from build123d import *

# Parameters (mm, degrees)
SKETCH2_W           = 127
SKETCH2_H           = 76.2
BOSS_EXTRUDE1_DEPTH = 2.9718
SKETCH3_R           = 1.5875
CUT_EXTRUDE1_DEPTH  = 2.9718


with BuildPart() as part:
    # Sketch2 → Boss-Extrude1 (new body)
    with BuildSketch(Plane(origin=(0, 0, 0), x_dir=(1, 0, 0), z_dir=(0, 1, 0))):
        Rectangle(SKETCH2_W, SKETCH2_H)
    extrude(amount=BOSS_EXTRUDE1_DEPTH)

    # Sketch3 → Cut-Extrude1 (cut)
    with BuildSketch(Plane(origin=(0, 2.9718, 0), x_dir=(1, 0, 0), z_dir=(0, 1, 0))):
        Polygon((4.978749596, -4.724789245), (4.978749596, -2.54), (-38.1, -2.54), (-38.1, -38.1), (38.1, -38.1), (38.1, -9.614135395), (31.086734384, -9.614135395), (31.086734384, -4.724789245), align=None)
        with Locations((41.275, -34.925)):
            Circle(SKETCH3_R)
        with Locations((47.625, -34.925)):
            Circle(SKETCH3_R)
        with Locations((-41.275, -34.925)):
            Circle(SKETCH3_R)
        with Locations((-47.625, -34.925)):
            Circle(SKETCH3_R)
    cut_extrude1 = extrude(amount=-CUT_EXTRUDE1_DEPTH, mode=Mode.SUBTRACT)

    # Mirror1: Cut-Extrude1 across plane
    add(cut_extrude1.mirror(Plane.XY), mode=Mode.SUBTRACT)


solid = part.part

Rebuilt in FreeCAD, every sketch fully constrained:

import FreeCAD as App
import Part
import Sketcher
Q = App.Units.Quantity


def add_polygon(sketch, points):
    """Adds a closed chain of lines whose ends are joined by coincident constraints."""
    first, n = sketch.GeometryCount, len(points)
    for a, b in zip(points, points[1:] + points[:1]):
        sketch.addGeometry(Part.LineSegment(App.Vector(*a, 0), App.Vector(*b, 0)), False)
    for i in range(n):
        sketch.addConstraint(Sketcher.Constraint("Coincident", first + i, 2, first + (i + 1) % n, 1))

doc = App.newDocument("Part")
params = doc.addObject("Spreadsheet::Sheet", "Params")
for row, (alias, value) in enumerate([
    ("sketch1_width", "5 in"),
    ("sketch1_height", "3 in"),
    ("pad1_length", "0.117 in"),
    ("sketch2_width", "3 in"),
    ("sketch2_diameter", "0.125 in"),
    ("sketch2_height", "1.4 in"),
    ("pocket1_length", "0.117 in"),
], start=1):
    params.set(f"A{row}", alias)
    params.set(f"B{row}", "=" + value)
    params.setAlias(f"B{row}", alias)

body = doc.addObject("PartDesign::Body", "Body")

sketch1 = doc.addObject("Sketcher::SketchObject", "Sketch")
body.addObject(sketch1)
sketch1.AttachmentSupport = (doc.XZ_Plane, [""])
sketch1.MapMode = "FlatFace"
add_polygon(sketch1, [(-64, -38), (-64, 38), (64, 38), (64, -38)])
sketch1.addConstraint(Sketcher.Constraint("Vertical", 0))
sketch1.addConstraint(Sketcher.Constraint("Horizontal", 1))
sketch1.addConstraint(Sketcher.Constraint("Vertical", 2))
sketch1.addConstraint(Sketcher.Constraint("Horizontal", 3))
sketch1.addConstraint(Sketcher.Constraint("Symmetric", 0, 2, 2, 2, -1, 1))
sketch1.addConstraint(Sketcher.Constraint("DistanceX", 1, 1, 1, 2, Q("5 in")))
sketch1.addConstraint(Sketcher.Constraint("DistanceY", 0, 1, 0, 2, Q("3 in")))
sketch1.setExpression("Constraints[9]", "Params.sketch1_width")
sketch1.setExpression("Constraints[10]", "Params.sketch1_height")
pad1 = doc.addObject("PartDesign::Pad", "Pad")
body.addObject(pad1)
pad1.Profile = sketch1
pad1.setExpression("Length", "Params.pad1_length")
pad1.Reversed = True

sketch2 = doc.addObject("Sketcher::SketchObject", "Sketch001")
body.addObject(sketch2)
sketch2.AttachmentSupport = (doc.XZ_Plane, [""])
sketch2.MapMode = "FlatFace"
sketch2.AttachmentOffset = App.Placement(App.Vector(0, 0, -0.117 * 25.4), App.Rotation())
add_polygon(sketch2, [(5, 4.7), (5, 2.5), (-38.1, 2.5), (-38.1, 38.1), (38.1, 38.1), (38.1, 9.6), (31.1, 9.6), (31.1, 4.7)])
sketch2.addGeometry(Part.Circle(App.Vector(41.3, 34.9, 0), App.Vector(0, 0, 1), 1.6), False)
sketch2.addGeometry(Part.Circle(App.Vector(47.6, 34.9, 0), App.Vector(0, 0, 1), 1.6), False)
sketch2.addGeometry(Part.Circle(App.Vector(-41.3, 34.9, 0), App.Vector(0, 0, 1), 1.6), False)
sketch2.addGeometry(Part.Circle(App.Vector(-47.6, 34.9, 0), App.Vector(0, 0, 1), 1.6), False)
sketch2.addConstraint(Sketcher.Constraint("Vertical", 0))
sketch2.addConstraint(Sketcher.Constraint("Horizontal", 1))
sketch2.addConstraint(Sketcher.Constraint("Vertical", 2))
sketch2.addConstraint(Sketcher.Constraint("Horizontal", 3))
sketch2.addConstraint(Sketcher.Constraint("Vertical", 4))
sketch2.addConstraint(Sketcher.Constraint("Horizontal", 5))
sketch2.addConstraint(Sketcher.Constraint("Vertical", 6))
sketch2.addConstraint(Sketcher.Constraint("Horizontal", 7))
sketch2.addConstraint(Sketcher.Constraint("Equal", 8, 9))
sketch2.addConstraint(Sketcher.Constraint("Equal", 9, 10))
sketch2.addConstraint(Sketcher.Constraint("Equal", 10, 11))
sketch2.addConstraint(Sketcher.Constraint("Symmetric", 8, 3, 10, 3, -2))
sketch2.addConstraint(Sketcher.Constraint("Symmetric", 9, 3, 11, 3, -2))
sketch2.addConstraint(Sketcher.Constraint("Horizontal", 8, 3, 9, 3))
sketch2.addConstraint(Sketcher.Constraint("DistanceX", 3, 1, 3, 2, Q("3 in")))
sketch2.addConstraint(Sketcher.Constraint("Diameter", 8, Q("0.125 in")))
sketch2.addConstraint(Sketcher.Constraint("DistanceY", 2, 1, 2, 2, Q("1.4 in")))
sketch2.addConstraint(Sketcher.Constraint("DistanceY", -1, 1, 0, 2, Q("0.1 in")))
sketch2.addConstraint(Sketcher.Constraint("DistanceX", 1, 2, -1, 1, Q("1.5 in")))
sketch2.addConstraint(Sketcher.Constraint("DistanceX", 10, 3, 9, 3, Q("3.5 in")))
sketch2.addConstraint(Sketcher.Constraint("DistanceX", 8, 3, 9, 3, Q("0.25 in")))
sketch2.addConstraint(Sketcher.Constraint("DistanceY", -1, 1, 8, 3, Q("1.375 in")))
sketch2.addConstraint(Sketcher.Constraint("DistanceX", 1, 2, 1, 1, 43.07875))
sketch2.addConstraint(Sketcher.Constraint("DistanceY", 0, 2, 0, 1, 2.184789))
sketch2.addConstraint(Sketcher.Constraint("DistanceX", 5, 2, 5, 1, 7.013266))
sketch2.addConstraint(Sketcher.Constraint("DistanceY", 4, 2, 4, 1, 28.485865))
sketch2.setExpression("Constraints[22]", "Params.sketch2_width")
sketch2.setExpression("Constraints[23]", "Params.sketch2_diameter")
sketch2.setExpression("Constraints[24]", "Params.sketch2_height")
pocket1 = doc.addObject("PartDesign::Pocket", "Pocket")
body.addObject(pocket1)
pocket1.Profile = sketch2
pocket1.setExpression("Length", "Params.pocket1_length")
pocket1.Reversed = True
doc.recompute()

mirrored = doc.addObject("PartDesign::Mirrored", "Mirrored")
body.addObject(mirrored)
mirrored.Originals = [pocket1]
mirrored.MirrorPlane = (doc.XY_Plane, [""])
body.Tip = mirrored

doc.recompute()
